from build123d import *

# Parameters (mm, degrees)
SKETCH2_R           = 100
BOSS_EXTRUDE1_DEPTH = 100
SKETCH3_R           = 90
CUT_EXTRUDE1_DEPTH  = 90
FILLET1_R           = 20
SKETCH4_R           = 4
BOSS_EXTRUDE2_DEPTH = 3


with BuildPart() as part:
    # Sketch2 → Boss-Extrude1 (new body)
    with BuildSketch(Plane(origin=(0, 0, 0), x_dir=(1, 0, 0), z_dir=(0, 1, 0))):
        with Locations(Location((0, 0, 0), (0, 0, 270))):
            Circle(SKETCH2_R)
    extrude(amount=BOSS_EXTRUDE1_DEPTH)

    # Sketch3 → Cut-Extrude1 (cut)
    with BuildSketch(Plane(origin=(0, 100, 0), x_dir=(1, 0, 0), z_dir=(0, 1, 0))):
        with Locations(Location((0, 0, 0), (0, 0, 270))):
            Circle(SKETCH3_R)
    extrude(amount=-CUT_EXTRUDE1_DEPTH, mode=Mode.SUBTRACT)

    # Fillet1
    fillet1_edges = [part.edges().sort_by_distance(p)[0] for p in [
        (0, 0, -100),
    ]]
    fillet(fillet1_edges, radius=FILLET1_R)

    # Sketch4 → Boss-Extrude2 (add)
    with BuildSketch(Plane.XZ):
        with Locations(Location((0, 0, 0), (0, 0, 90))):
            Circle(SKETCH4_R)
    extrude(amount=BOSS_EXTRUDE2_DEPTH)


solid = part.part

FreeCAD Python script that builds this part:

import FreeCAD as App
import Part
import Sketcher


def edges_at(feature, points):
    """Names of the edges that pass closest to the given points."""
    edges = feature.Shape.Edges
    near = lambda p: min(range(len(edges)), key=lambda i: edges[i].distToShape(Part.Vertex(*p))[0])
    return sorted({f"Edge{near(p) + 1}" for p in points})

doc = App.newDocument("Part")
body = doc.addObject("PartDesign::Body", "Body")

sketch1 = doc.addObject("Sketcher::SketchObject", "Sketch")
body.addObject(sketch1)
sketch1.AttachmentSupport = (doc.XZ_Plane, [""])
sketch1.MapMode = "FlatFace"
sketch1.addGeometry(Part.Circle(App.Vector(0, 0, 0), App.Vector(0, 0, 1), 100), False)
sketch1.addConstraint([
    Sketcher.Constraint("Coincident", 0, 3, -1, 1),
    Sketcher.Constraint("Diameter", 0, 200.0),
])
pad1 = doc.addObject("PartDesign::Pad", "Pad")
body.addObject(pad1)
pad1.Profile = sketch1
pad1.Length = 100
pad1.Reversed = True

sketch2 = doc.addObject("Sketcher::SketchObject", "Sketch001")
body.addObject(sketch2)
sketch2.AttachmentSupport = (doc.XZ_Plane, [""])
sketch2.MapMode = "FlatFace"
sketch2.AttachmentOffset = App.Placement(App.Vector(0, 0, -100), App.Rotation())
sketch2.addGeometry(Part.Circle(App.Vector(0, 0, 0), App.Vector(0, 0, 1), 90), False)
sketch2.addConstraint([
    Sketcher.Constraint("Coincident", 0, 3, -1, 1),
    Sketcher.Constraint("Diameter", 0, 180.0),
])
pocket1 = doc.addObject("PartDesign::Pocket", "Pocket")
body.addObject(pocket1)
pocket1.Profile = sketch2
pocket1.Length = 90
pocket1.Reversed = True
doc.recompute()

fillet = doc.addObject("PartDesign::Fillet", "Fillet")
body.addObject(fillet)
fillet.Base = (pocket1, edges_at(pocket1, [(0, 0, -100)]))
fillet.Radius = 20

sketch3 = doc.addObject("Sketcher::SketchObject", "Sketch002")
body.addObject(sketch3)
sketch3.AttachmentSupport = (doc.XZ_Plane, [""])
sketch3.MapMode = "FlatFace"
sketch3.addGeometry(Part.Circle(App.Vector(0, 0, 0), App.Vector(0, 0, 1), 4), False)
sketch3.addConstraint([
    Sketcher.Constraint("Coincident", 0, 3, -1, 1),
    Sketcher.Constraint("Diameter", 0, 8.0),
])
pad2 = doc.addObject("PartDesign::Pad", "Pad001")
body.addObject(pad2)
pad2.Profile = sketch3
pad2.Length = 3

doc.recompute()
